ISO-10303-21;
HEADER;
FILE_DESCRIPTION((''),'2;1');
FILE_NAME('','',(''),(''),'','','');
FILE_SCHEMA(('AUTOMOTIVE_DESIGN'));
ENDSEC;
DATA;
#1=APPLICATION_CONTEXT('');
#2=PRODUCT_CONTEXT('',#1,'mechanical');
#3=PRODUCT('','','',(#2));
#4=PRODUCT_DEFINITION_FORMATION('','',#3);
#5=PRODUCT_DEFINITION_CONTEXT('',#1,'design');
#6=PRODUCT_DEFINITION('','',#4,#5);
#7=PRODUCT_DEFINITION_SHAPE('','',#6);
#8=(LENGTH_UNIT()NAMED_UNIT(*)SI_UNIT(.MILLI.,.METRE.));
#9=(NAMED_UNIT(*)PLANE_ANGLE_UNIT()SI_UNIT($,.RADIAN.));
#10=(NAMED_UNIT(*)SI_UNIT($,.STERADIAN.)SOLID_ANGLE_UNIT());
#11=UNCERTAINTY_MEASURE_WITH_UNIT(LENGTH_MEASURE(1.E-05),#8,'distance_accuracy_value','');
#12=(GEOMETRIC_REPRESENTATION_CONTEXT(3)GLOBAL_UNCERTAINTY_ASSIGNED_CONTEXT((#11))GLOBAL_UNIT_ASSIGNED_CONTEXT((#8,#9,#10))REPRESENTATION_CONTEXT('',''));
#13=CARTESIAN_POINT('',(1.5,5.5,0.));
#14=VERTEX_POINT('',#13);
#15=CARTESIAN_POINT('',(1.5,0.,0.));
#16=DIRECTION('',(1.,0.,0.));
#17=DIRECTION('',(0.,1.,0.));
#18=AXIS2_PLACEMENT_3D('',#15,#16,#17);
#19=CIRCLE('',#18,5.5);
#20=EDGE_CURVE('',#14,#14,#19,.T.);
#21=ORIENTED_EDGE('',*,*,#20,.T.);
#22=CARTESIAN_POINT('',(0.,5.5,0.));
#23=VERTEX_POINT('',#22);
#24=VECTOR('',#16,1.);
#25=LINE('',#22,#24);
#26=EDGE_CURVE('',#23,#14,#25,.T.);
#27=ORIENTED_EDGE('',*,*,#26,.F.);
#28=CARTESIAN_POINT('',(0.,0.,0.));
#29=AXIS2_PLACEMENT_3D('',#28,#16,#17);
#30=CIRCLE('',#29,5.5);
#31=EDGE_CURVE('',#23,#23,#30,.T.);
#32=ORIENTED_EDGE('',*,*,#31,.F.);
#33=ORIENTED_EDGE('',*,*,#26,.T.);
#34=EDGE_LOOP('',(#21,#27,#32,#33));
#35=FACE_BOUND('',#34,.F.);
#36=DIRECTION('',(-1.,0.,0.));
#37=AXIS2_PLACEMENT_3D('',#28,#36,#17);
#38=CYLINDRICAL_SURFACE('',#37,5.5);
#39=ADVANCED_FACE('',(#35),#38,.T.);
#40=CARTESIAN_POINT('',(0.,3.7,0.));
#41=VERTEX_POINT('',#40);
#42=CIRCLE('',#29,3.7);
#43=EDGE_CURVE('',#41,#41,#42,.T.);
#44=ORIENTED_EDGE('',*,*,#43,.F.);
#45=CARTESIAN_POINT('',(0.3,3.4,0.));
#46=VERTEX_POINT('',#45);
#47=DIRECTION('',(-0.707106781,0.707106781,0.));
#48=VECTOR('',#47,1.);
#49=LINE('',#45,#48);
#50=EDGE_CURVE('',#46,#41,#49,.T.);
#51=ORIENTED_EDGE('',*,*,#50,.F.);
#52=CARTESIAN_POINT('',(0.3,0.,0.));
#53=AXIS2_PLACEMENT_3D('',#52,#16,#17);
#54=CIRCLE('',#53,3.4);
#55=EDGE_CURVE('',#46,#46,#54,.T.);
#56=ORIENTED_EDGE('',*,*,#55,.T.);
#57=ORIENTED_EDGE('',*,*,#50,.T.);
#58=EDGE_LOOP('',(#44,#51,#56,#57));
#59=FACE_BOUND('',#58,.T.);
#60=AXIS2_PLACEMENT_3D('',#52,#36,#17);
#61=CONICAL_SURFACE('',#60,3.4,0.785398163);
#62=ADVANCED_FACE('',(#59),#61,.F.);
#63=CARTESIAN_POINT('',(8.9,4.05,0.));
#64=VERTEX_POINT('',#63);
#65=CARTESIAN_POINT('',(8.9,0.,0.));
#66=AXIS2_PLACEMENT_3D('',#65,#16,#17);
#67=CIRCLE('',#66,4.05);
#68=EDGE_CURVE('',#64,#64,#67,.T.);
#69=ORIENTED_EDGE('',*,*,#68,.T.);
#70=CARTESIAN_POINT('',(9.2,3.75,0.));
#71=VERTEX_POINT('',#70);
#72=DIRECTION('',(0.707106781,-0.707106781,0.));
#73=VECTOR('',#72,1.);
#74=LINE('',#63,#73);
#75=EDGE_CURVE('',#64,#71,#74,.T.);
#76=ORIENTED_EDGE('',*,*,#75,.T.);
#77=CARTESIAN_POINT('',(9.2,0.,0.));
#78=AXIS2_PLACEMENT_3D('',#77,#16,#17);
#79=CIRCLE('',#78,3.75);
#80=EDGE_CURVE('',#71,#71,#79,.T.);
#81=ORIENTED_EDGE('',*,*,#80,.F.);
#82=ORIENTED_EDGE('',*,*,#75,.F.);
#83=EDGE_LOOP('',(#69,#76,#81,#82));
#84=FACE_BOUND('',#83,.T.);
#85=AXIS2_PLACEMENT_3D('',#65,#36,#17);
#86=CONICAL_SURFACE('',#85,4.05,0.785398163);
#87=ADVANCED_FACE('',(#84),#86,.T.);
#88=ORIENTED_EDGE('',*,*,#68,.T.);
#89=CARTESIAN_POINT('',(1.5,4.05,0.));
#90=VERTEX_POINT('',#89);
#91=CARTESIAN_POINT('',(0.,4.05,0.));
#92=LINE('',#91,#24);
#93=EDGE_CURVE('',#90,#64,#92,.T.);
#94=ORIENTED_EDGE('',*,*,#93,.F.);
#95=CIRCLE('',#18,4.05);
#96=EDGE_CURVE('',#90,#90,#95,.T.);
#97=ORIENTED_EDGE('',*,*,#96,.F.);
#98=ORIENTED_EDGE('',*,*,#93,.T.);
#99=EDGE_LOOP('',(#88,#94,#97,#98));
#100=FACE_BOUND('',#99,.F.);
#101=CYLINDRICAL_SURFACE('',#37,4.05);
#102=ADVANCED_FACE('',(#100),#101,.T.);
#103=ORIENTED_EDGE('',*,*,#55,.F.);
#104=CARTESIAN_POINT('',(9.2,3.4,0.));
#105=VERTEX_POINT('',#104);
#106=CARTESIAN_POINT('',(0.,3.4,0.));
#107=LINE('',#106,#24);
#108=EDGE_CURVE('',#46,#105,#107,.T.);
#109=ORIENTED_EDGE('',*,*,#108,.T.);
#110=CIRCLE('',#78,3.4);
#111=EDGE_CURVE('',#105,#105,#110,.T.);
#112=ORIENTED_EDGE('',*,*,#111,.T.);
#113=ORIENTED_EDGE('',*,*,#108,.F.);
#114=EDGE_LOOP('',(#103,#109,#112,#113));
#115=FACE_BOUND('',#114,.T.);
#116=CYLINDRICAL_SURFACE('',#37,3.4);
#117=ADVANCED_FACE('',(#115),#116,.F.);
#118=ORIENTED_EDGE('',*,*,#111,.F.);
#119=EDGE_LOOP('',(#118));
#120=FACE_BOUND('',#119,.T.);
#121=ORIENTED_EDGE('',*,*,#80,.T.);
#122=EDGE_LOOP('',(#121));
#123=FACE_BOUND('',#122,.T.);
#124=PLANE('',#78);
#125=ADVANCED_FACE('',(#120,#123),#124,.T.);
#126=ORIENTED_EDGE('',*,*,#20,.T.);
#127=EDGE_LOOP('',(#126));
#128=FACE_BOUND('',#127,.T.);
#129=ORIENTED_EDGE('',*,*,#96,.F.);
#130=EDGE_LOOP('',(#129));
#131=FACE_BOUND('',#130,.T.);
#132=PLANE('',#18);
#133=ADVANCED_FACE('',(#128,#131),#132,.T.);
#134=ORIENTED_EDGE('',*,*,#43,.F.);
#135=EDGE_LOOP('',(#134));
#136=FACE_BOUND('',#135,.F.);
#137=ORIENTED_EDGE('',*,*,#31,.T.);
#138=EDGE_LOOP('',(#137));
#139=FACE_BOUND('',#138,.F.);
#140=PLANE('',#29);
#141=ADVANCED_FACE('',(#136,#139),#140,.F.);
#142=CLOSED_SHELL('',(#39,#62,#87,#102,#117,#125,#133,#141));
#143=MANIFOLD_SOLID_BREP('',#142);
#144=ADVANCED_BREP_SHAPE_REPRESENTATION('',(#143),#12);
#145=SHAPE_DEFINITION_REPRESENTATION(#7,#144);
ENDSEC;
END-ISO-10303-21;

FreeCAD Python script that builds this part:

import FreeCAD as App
import Part
import Sketcher

V = App.Vector


def edges_at(feature, points):
    """Names of the edges that pass closest to the given points."""
    edges = feature.Shape.Edges
    near = lambda p: min(range(len(edges)), key=lambda i: edges[i].distToShape(Part.Vertex(*p))[0])
    return sorted({f"Edge{near(p) + 1}" for p in points})

doc = App.newDocument("Part")
body = doc.addObject("PartDesign::Body", "Body")

# Sketch on YZ plane
sketch1 = body.newObject("Sketcher::SketchObject", "Sketch")
sketch1.AttachmentSupport = (doc.getObject("YZ_Plane"), [""])
sketch1.MapMode = "FlatFace"
sketch1.addGeometry([
    Part.Circle(V(0, 0, 0), V(0, 0, 1), 5.5),
    Part.Circle(V(0, 0, 0), V(0, 0, 1), 4),
], False)
sketch1.addConstraint([
    Sketcher.Constraint("Coincident", 0, 3, -1, 1),
    Sketcher.Constraint("Coincident", 1, 3, -1, 1),
    Sketcher.Constraint("Diameter", 0, 11.0),
    Sketcher.Constraint("Diameter", 1, 8.1),
])
pad1 = body.newObject("PartDesign::Pad", "Pad")
pad1.Profile = sketch1
pad1.Length = 1.5

# Sketch on YZ plane
sketch2 = body.newObject("Sketcher::SketchObject", "Sketch001")
sketch2.AttachmentSupport = (doc.getObject("YZ_Plane"), [""])
sketch2.MapMode = "FlatFace"
sketch2.addGeometry([
    Part.Circle(V(0, 0, 0), V(0, 0, 1), 4),
    Part.Circle(V(0, 0, 0), V(0, 0, 1), 3.4),
], False)
sketch2.addConstraint([
    Sketcher.Constraint("Coincident", 0, 3, -1, 1),
    Sketcher.Constraint("Coincident", 1, 3, -1, 1),
    Sketcher.Constraint("Diameter", 0, 8.1),
    Sketcher.Constraint("Diameter", 1, 6.8),
])
pad2 = body.newObject("PartDesign::Pad", "Pad001")
pad2.Profile = sketch2
pad2.Length = 9.2

# Sketch on YZ plane
sketch3 = body.newObject("Sketcher::SketchObject", "Sketch002")
sketch3.AttachmentSupport = (doc.getObject("YZ_Plane"), [""])
sketch3.MapMode = "FlatFace"
sketch3.addGeometry(Part.Circle(V(0, 0, 0), V(0, 0, 1), 3.4), False)
sketch3.addConstraint([
    Sketcher.Constraint("Coincident", 0, 3, -1, 1),
    Sketcher.Constraint("Diameter", 0, 6.8),
])
pocket1 = body.newObject("PartDesign::Pocket", "Pocket")
pocket1.Profile = sketch3
pocket1.Type = "ThroughAll"
pocket1.Reversed = True
doc.recompute()

chamfer = body.newObject("PartDesign::Chamfer", "Chamfer")
chamfer.Base = (pocket1, edges_at(pocket1, [(0, -3.4, 0), (9.2, -4.05, 0)]))
chamfer.Size = 0.3

doc.recompute()
